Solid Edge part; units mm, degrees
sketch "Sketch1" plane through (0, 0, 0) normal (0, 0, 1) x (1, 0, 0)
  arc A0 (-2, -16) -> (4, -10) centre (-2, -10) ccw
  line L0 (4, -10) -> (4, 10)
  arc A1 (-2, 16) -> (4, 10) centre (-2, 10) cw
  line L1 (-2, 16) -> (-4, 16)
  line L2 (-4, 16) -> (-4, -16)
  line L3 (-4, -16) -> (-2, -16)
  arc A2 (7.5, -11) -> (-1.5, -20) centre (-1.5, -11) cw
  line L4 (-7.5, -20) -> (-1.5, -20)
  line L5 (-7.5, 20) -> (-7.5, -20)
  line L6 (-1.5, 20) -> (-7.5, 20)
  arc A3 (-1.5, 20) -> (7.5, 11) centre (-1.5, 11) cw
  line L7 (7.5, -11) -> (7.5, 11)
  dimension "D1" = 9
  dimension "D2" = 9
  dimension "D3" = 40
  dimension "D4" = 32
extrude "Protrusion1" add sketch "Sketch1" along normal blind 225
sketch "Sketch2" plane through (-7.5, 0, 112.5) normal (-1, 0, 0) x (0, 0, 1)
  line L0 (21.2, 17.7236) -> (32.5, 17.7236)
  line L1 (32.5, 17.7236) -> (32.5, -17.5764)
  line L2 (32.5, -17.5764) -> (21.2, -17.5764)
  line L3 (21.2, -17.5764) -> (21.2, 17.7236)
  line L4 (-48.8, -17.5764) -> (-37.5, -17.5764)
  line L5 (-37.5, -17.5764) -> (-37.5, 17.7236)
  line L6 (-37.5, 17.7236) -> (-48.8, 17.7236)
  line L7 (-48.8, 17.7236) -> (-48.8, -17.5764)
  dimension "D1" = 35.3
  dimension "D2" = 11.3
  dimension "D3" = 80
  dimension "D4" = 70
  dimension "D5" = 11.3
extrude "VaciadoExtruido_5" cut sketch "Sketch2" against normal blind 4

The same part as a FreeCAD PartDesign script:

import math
import FreeCAD as App
import Part
import Sketcher


def add_polygon(sketch, points):
    """Adds a closed chain of lines whose ends are joined by coincident constraints."""
    first, n = sketch.GeometryCount, len(points)
    for a, b in zip(points, points[1:] + points[:1]):
        sketch.addGeometry(Part.LineSegment(App.Vector(*a, 0), App.Vector(*b, 0)), False)
    for i in range(n):
        sketch.addConstraint(Sketcher.Constraint("Coincident", first + i, 2, first + (i + 1) % n, 1))

doc = App.newDocument("Part")
body = doc.addObject("PartDesign::Body", "Body")

sketch1 = body.newObject("Sketcher::SketchObject", "Sketch")
sketch1.AttachmentSupport = (doc.getObject("XY_Plane"), [""])
sketch1.MapMode = "FlatFace"
sketch1.addGeometry(Part.ArcOfCircle(Part.Circle(App.Vector(-1.5, -11, 0), App.Vector(0, 0, 1), 9), math.radians(-90), math.radians(0)), False)
sketch1.addGeometry(Part.LineSegment(App.Vector(7.5, -11, 0), App.Vector(7.5, 11, 0)), False)
sketch1.addGeometry(Part.ArcOfCircle(Part.Circle(App.Vector(-1.5, 11, 0), App.Vector(0, 0, 1), 9), math.radians(0), math.radians(90)), False)
sketch1.addGeometry(Part.LineSegment(App.Vector(-1.5, 20, 0), App.Vector(-7.5, 20, 0)), False)
sketch1.addGeometry(Part.LineSegment(App.Vector(-7.5, 20, 0), App.Vector(-7.5, -20, 0)), False)
sketch1.addGeometry(Part.LineSegment(App.Vector(-7.5, -20, 0), App.Vector(-1.5, -20, 0)), False)
sketch1.addGeometry(Part.ArcOfCircle(Part.Circle(App.Vector(-2, -10, 0), App.Vector(0, 0, 1), 6), math.radians(-90), math.radians(0)), False)
sketch1.addGeometry(Part.LineSegment(App.Vector(-2, -16, 0), App.Vector(-4, -16, 0)), False)
sketch1.addGeometry(Part.LineSegment(App.Vector(-4, -16, 0), App.Vector(-4, 16, 0)), False)
sketch1.addGeometry(Part.LineSegment(App.Vector(-4, 16, 0), App.Vector(-2, 16, 0)), False)
sketch1.addGeometry(Part.ArcOfCircle(Part.Circle(App.Vector(-2, 10, 0), App.Vector(0, 0, 1), 6), math.radians(0), math.radians(90)), False)
sketch1.addGeometry(Part.LineSegment(App.Vector(4, 10, 0), App.Vector(4, -10, 0)), False)
sketch1.addConstraint(Sketcher.Constraint("Tangent", 0, 2, 1, 1))
sketch1.addConstraint(Sketcher.Constraint("Tangent", 1, 2, 2, 1))
sketch1.addConstraint(Sketcher.Constraint("Tangent", 2, 2, 3, 1))
sketch1.addConstraint(Sketcher.Constraint("Coincident", 3, 2, 4, 1))
sketch1.addConstraint(Sketcher.Constraint("Coincident", 4, 2, 5, 1))
sketch1.addConstraint(Sketcher.Constraint("Tangent", 5, 2, 0, 1))
sketch1.addConstraint(Sketcher.Constraint("Tangent", 6, 1, 7, 1))
sketch1.addConstraint(Sketcher.Constraint("Coincident", 7, 2, 8, 1))
sketch1.addConstraint(Sketcher.Constraint("Coincident", 8, 2, 9, 1))
sketch1.addConstraint(Sketcher.Constraint("Tangent", 9, 2, 10, 2))
sketch1.addConstraint(Sketcher.Constraint("Tangent", 10, 1, 11, 1))
sketch1.addConstraint(Sketcher.Constraint("Tangent", 11, 2, 6, 2))
sketch1.addConstraint(Sketcher.Constraint("Vertical", 1))
sketch1.addConstraint(Sketcher.Constraint("Horizontal", 3))
sketch1.addConstraint(Sketcher.Constraint("Vertical", 4))
sketch1.addConstraint(Sketcher.Constraint("Horizontal", 5))
sketch1.addConstraint(Sketcher.Constraint("Horizontal", 7))
sketch1.addConstraint(Sketcher.Constraint("Vertical", 8))
sketch1.addConstraint(Sketcher.Constraint("Horizontal", 9))
sketch1.addConstraint(Sketcher.Constraint("Vertical", 11))
sketch1.addConstraint(Sketcher.Constraint("Equal", 0, 2))
sketch1.addConstraint(Sketcher.Constraint("Equal", 6, 10))
sketch1.addConstraint(Sketcher.Constraint("Radius", 0, 9.0))
sketch1.addConstraint(Sketcher.Constraint("Radius", 6, 6.0))
sketch1.addConstraint(Sketcher.Constraint("DistanceX", 3, 2, 3, 1, 6.0))
sketch1.addConstraint(Sketcher.Constraint("DistanceX", 7, 2, 7, 1, 2.0))
sketch1.addConstraint(Sketcher.Constraint("DistanceY", 1, 1, 1, 2, 22.0))
sketch1.addConstraint(Sketcher.Constraint("DistanceY", 8, 1, 8, 2, 32.0))
sketch1.addConstraint(Sketcher.Constraint("DistanceY", 0, 3, -1, 1, 11.0))
sketch1.addConstraint(Sketcher.Constraint("DistanceX", 6, 3, -1, 1, 2.0))
sketch1.addConstraint(Sketcher.Constraint("DistanceY", 6, 3, -1, 1, 10.0))
sketch1.addConstraint(Sketcher.Constraint("DistanceX", 0, 3, -1, 1, 1.5))
pad1 = body.newObject("PartDesign::Pad", "Pad")
pad1.Profile = sketch1
pad1.Length = 225

sketch2 = body.newObject("Sketcher::SketchObject", "Sketch001")
sketch2.AttachmentSupport = (doc.getObject("YZ_Plane"), [""])
sketch2.MapMode = "FlatFace"
sketch2.AttachmentOffset = App.Placement(App.Vector(0, 0, -7.5), App.Rotation())
add_polygon(sketch2, [(18, 145), (18, 134), (-18, 134), (-18, 145)])
add_polygon(sketch2, [(18, 64), (-18, 64), (-18, 75), (18, 75)])
sketch2.addConstraint(Sketcher.Constraint("Vertical", 0))
sketch2.addConstraint(Sketcher.Constraint("Horizontal", 1))
sketch2.addConstraint(Sketcher.Constraint("Vertical", 2))
sketch2.addConstraint(Sketcher.Constraint("Horizontal", 3))
sketch2.addConstraint(Sketcher.Constraint("Horizontal", 4))
sketch2.addConstraint(Sketcher.Constraint("Vertical", 5))
sketch2.addConstraint(Sketcher.Constraint("Horizontal", 6))
sketch2.addConstraint(Sketcher.Constraint("Vertical", 7))
sketch2.addConstraint(Sketcher.Constraint("Vertical", 2, 2, 4, 2))
sketch2.addConstraint(Sketcher.Constraint("Vertical", 3, 2, 6, 2))
sketch2.addConstraint(Sketcher.Constraint("Equal", 2, 5))
sketch2.addConstraint(Sketcher.Constraint("DistanceX", 1, 2, 1, 1, 35.3))
sketch2.addConstraint(Sketcher.Constraint("DistanceY", 0, 2, 0, 1, 11.3))
sketch2.addConstraint(Sketcher.Constraint("DistanceY", -1, 1, 2, 2, 145.0))
sketch2.addConstraint(Sketcher.Constraint("DistanceY", -1, 1, 5, 2, 75.0))
sketch2.addConstraint(Sketcher.Constraint("DistanceX", -1, 1, 0, 2, 17.7236))
pocket1 = body.newObject("PartDesign::Pocket", "Pocket")
pocket1.Profile = sketch2
pocket1.Length = 4
pocket1.Reversed = True

doc.recompute()
